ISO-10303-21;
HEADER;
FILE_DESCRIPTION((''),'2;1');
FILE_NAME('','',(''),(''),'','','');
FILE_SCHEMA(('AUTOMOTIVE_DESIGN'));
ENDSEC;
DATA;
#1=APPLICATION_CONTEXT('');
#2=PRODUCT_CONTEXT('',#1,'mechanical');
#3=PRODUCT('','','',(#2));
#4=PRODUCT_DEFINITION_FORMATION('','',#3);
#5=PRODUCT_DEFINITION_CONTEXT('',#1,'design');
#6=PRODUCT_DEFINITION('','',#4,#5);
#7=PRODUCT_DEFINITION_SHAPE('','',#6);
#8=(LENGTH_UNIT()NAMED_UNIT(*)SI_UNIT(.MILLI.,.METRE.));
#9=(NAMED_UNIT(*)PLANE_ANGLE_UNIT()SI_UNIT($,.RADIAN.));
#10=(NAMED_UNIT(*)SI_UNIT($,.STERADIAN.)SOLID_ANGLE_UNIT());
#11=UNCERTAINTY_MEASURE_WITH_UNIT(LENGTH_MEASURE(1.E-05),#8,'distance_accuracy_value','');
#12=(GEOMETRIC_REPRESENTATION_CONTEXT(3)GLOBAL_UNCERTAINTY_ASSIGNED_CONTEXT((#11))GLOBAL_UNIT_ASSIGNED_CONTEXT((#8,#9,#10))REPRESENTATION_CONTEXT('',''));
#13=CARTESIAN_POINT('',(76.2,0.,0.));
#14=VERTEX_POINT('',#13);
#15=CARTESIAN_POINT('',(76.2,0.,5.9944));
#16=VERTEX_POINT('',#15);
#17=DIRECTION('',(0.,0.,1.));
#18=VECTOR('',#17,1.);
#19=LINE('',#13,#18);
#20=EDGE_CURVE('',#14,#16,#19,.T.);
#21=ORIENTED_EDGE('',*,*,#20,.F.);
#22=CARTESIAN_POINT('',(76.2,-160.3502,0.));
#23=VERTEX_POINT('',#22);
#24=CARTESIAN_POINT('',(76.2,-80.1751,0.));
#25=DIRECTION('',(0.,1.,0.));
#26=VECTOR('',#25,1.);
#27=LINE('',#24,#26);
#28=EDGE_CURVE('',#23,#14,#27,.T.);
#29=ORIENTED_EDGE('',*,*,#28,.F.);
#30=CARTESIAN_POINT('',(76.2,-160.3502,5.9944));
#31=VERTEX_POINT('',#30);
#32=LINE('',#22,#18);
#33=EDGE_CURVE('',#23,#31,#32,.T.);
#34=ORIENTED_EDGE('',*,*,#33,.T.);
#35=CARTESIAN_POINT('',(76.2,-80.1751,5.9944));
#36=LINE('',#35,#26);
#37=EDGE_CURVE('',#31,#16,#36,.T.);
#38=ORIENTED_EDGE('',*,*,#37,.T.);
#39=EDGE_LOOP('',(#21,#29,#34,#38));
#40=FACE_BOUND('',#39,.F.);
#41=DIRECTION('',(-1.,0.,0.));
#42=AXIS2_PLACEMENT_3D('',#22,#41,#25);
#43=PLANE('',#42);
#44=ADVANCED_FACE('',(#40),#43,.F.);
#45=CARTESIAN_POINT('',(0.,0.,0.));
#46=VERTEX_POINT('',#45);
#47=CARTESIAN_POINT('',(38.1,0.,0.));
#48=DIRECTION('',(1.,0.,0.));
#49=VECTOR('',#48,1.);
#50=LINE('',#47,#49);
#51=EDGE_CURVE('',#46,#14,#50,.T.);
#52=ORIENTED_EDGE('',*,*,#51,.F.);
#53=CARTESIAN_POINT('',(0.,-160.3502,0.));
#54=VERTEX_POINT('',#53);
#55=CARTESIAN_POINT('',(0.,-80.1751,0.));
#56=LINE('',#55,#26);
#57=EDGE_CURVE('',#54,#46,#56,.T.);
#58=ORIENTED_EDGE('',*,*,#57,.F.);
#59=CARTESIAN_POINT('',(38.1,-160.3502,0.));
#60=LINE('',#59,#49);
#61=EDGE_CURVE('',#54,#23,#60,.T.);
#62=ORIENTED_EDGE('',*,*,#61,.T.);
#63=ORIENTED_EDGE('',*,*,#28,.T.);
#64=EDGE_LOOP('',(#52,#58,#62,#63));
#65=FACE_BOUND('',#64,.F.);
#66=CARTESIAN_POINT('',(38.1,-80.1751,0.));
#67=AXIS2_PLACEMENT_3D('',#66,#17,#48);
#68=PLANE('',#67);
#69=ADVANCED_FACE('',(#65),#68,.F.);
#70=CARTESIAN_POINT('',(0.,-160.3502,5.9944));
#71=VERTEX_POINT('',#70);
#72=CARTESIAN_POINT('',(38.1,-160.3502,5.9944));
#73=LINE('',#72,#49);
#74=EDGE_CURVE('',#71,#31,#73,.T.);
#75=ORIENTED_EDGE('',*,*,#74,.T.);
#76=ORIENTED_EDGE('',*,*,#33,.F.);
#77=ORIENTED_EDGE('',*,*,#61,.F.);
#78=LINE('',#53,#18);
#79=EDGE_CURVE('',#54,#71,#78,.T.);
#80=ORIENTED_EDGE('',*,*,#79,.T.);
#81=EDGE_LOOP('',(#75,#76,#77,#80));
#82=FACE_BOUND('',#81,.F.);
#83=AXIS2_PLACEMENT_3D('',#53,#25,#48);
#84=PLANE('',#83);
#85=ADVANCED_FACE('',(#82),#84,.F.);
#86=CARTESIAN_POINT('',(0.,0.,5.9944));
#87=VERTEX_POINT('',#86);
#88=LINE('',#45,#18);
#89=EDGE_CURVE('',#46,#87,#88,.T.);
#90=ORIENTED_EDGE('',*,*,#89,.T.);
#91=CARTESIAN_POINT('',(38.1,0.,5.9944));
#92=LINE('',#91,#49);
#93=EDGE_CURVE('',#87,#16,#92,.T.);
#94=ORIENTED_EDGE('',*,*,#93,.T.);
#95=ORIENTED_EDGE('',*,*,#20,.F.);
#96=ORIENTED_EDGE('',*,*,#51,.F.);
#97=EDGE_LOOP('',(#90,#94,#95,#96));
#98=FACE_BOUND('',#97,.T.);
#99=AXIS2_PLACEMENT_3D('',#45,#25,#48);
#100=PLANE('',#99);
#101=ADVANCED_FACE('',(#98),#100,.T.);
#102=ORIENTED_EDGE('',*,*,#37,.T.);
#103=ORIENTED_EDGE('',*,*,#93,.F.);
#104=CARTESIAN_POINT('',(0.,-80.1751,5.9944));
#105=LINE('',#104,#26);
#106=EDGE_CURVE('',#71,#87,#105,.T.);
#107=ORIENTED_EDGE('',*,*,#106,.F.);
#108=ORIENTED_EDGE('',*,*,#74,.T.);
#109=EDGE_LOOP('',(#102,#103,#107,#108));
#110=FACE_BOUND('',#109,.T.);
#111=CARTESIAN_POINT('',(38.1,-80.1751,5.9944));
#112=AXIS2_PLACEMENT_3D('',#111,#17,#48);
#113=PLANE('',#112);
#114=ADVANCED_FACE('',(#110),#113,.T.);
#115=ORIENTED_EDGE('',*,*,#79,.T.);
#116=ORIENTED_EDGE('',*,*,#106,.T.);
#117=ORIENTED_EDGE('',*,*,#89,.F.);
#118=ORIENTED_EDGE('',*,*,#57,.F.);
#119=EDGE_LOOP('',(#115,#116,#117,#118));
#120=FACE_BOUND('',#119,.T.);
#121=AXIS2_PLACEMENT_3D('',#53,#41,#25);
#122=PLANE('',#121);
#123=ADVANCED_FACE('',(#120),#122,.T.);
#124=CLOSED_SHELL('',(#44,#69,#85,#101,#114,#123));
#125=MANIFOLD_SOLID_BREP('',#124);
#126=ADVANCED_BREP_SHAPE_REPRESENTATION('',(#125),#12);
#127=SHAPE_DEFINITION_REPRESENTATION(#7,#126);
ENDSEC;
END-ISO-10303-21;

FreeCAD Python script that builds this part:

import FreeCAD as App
import Part
import Sketcher

V = App.Vector
Q = App.Units.Quantity


def add_polygon(sketch, points):
    """Adds a closed chain of lines whose ends are joined by coincident constraints."""
    first, n = sketch.GeometryCount, len(points)
    for a, b in zip(points, points[1:] + points[:1]):
        sketch.addGeometry(Part.LineSegment(App.Vector(*a, 0), App.Vector(*b, 0)), False)
    for i in range(n):
        sketch.addConstraint(Sketcher.Constraint("Coincident", first + i, 2, first + (i + 1) % n, 1))

doc = App.newDocument("Part")
body = doc.addObject("PartDesign::Body", "Body")

sketch1 = body.newObject("Sketcher::SketchObject", "Sketch")
sketch1.AttachmentSupport = (doc.getObject("XY_Plane"), [""])
sketch1.MapMode = "FlatFace"
add_polygon(sketch1, [(0, 0), (0, -160.3502), (76.2, -160.3502), (76.2, 0)])
sketch1.addConstraint(Sketcher.Constraint("Vertical", 0))
sketch1.addConstraint(Sketcher.Constraint("Horizontal", 1))
sketch1.addConstraint(Sketcher.Constraint("Vertical", 2))
sketch1.addConstraint(Sketcher.Constraint("Horizontal", 3))
sketch1.addConstraint(Sketcher.Constraint("Coincident", 3, 2, -1, 1))
sketch1.addConstraint(Sketcher.Constraint("DistanceX", 1, 1, 1, 2, Q("3 in")))
sketch1.addConstraint(Sketcher.Constraint("DistanceY", 0, 2, 0, 1, Q("6.313 in")))
pad1 = body.newObject("PartDesign::Pad", "Pad")
pad1.Profile = sketch1
pad1.Length = Q("0.236 in")

doc.recompute()
